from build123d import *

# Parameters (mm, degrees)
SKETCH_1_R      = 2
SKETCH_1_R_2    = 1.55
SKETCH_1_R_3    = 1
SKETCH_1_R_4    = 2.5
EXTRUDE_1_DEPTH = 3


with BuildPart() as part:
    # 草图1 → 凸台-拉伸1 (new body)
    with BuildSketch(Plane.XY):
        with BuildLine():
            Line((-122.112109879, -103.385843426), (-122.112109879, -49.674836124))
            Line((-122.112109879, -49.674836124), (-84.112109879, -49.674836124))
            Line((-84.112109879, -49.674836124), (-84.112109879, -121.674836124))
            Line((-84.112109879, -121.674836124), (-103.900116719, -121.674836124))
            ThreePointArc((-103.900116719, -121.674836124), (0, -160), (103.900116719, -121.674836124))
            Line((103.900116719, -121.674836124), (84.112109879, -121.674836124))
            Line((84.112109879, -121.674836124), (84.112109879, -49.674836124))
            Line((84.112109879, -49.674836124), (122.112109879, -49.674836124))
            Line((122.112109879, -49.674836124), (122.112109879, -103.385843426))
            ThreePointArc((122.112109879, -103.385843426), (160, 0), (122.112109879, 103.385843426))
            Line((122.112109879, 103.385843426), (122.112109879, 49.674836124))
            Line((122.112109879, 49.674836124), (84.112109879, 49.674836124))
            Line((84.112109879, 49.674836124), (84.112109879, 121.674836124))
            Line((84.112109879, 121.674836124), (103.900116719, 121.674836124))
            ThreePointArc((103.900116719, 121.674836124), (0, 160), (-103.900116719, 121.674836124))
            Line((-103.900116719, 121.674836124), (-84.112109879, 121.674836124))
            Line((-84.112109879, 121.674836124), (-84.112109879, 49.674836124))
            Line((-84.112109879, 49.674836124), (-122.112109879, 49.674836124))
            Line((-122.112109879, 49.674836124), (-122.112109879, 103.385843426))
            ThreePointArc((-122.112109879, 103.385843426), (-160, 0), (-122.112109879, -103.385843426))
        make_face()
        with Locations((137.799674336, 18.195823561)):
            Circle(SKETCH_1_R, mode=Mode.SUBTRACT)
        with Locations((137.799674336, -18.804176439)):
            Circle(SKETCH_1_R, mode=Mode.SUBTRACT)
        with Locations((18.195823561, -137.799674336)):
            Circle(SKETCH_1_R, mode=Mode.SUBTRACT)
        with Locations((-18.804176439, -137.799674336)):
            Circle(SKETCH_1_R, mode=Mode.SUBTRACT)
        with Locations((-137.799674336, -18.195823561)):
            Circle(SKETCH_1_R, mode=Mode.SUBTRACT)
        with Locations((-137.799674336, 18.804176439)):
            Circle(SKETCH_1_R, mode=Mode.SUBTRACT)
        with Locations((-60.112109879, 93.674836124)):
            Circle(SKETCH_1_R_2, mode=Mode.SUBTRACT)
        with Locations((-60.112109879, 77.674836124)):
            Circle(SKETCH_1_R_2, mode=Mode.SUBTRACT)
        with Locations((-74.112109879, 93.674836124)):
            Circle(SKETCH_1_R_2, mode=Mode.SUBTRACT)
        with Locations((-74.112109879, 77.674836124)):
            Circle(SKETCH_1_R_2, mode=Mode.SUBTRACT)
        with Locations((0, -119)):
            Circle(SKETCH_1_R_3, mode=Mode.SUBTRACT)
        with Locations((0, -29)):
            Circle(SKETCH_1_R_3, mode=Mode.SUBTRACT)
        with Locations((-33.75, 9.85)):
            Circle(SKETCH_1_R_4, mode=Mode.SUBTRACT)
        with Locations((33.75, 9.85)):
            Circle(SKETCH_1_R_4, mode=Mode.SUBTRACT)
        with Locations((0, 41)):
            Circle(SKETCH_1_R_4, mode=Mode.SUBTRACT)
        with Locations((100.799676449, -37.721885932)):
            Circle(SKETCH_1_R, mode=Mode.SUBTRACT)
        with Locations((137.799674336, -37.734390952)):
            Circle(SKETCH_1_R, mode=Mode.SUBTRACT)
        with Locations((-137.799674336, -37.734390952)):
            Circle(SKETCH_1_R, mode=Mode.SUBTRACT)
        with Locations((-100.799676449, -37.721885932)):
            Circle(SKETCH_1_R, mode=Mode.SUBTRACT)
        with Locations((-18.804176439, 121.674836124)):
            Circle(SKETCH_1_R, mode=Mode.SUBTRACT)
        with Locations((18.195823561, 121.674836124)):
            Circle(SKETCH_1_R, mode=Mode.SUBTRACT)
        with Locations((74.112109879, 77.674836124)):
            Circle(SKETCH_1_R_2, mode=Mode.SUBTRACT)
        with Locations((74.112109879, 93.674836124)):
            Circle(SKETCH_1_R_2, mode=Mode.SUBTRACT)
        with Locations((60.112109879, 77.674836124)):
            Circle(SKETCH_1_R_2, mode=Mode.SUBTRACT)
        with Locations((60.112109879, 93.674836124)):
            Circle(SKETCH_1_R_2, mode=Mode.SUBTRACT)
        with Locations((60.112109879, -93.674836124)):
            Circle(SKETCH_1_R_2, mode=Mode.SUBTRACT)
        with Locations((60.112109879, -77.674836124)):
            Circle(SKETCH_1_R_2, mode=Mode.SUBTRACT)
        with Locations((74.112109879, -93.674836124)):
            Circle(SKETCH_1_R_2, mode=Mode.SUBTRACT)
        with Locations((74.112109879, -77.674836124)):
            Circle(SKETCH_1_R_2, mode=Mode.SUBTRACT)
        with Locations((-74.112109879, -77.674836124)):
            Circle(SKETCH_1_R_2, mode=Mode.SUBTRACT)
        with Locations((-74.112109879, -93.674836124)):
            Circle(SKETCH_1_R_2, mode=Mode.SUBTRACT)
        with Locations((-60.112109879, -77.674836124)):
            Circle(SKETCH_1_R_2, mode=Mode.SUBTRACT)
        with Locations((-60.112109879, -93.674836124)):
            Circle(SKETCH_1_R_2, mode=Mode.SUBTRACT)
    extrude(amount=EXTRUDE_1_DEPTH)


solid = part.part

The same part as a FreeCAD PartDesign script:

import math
import FreeCAD as App
import Part
import Sketcher
Q = App.Units.Quantity

doc = App.newDocument("Part")
params = doc.addObject("Spreadsheet::Sheet", "Params")
for row, (alias, value) in enumerate([
    ("sketch1_diameter", "4 mm"),
    ("sketch1_diameter2", "2 mm"),
    ("sketch1_diameter3", "5 mm"),
    ("sketch1_radius", "160 mm"),
    ("sketch1_diameter4", "3.1 mm"),
    ("pad1_length", "3 mm"),
], start=1):
    params.set(f"A{row}", alias)
    params.set(f"B{row}", "=" + value)
    params.setAlias(f"B{row}", alias)

body = doc.addObject("PartDesign::Body", "Body")

sketch1 = body.newObject("Sketcher::SketchObject", "Sketch")
sketch1.AttachmentSupport = (doc.getObject("XY_Plane"), [""])
sketch1.MapMode = "FlatFace"
sketch1.addGeometry([
    Part.LineSegment(App.Vector(-122.1, -103.4, 0), App.Vector(-122.1, -49.7, 0)),
    Part.LineSegment(App.Vector(-122.1, -49.7, 0), App.Vector(-84.1, -49.7, 0)),
    Part.LineSegment(App.Vector(-84.1, -49.7, 0), App.Vector(-84.1, -121.7, 0)),
    Part.LineSegment(App.Vector(-84.1, -121.7, 0), App.Vector(-103.9, -121.7, 0)),
    Part.ArcOfCircle(Part.Circle(App.Vector(0, 0, 0), App.Vector(0, 0, 1), 160), math.radians(-130), math.radians(-50)),
    Part.LineSegment(App.Vector(103.9, -121.7, 0), App.Vector(84.1, -121.7, 0)),
    Part.LineSegment(App.Vector(84.1, -121.7, 0), App.Vector(84.1, -49.7, 0)),
    Part.LineSegment(App.Vector(84.1, -49.7, 0), App.Vector(122.1, -49.7, 0)),
    Part.LineSegment(App.Vector(122.1, -49.7, 0), App.Vector(122.1, -103.4, 0)),
    Part.ArcOfCircle(Part.Circle(App.Vector(0, 0, 0), App.Vector(0, 0, 1), 160), math.radians(-40), math.radians(40)),
    Part.LineSegment(App.Vector(122.1, 103.4, 0), App.Vector(122.1, 49.7, 0)),
    Part.LineSegment(App.Vector(122.1, 49.7, 0), App.Vector(84.1, 49.7, 0)),
    Part.LineSegment(App.Vector(84.1, 49.7, 0), App.Vector(84.1, 121.7, 0)),
    Part.LineSegment(App.Vector(84.1, 121.7, 0), App.Vector(103.9, 121.7, 0)),
    Part.ArcOfCircle(Part.Circle(App.Vector(0, 0, 0), App.Vector(0, 0, 1), 160), math.radians(50), math.radians(130)),
    Part.LineSegment(App.Vector(-103.9, 121.7, 0), App.Vector(-84.1, 121.7, 0)),
    Part.LineSegment(App.Vector(-84.1, 121.7, 0), App.Vector(-84.1, 49.7, 0)),
    Part.LineSegment(App.Vector(-84.1, 49.7, 0), App.Vector(-122.1, 49.7, 0)),
    Part.LineSegment(App.Vector(-122.1, 49.7, 0), App.Vector(-122.1, 103.4, 0)),
    Part.ArcOfCircle(Part.Circle(App.Vector(0, 0, 0), App.Vector(0, 0, 1), 160), math.radians(140), math.radians(220)),
    Part.Circle(App.Vector(-74.1, -93.7, 0), App.Vector(0, 0, 1), 1.6),
    Part.Circle(App.Vector(-74.1, -77.7, 0), App.Vector(0, 0, 1), 1.6),
    Part.Circle(App.Vector(-18.8, -137.8, 0), App.Vector(0, 0, 1), 2),
    Part.Circle(App.Vector(-60.1, -93.7, 0), App.Vector(0, 0, 1), 1.6),
    Part.Circle(App.Vector(-60.1, -77.7, 0), App.Vector(0, 0, 1), 1.6),
    Part.Circle(App.Vector(-137.8, -37.7, 0), App.Vector(0, 0, 1), 2),
    Part.Circle(App.Vector(-137.8, -18.2, 0), App.Vector(0, 0, 1), 2),
    Part.Circle(App.Vector(-100.8, -37.7, 0), App.Vector(0, 0, 1), 2),
    Part.Circle(App.Vector(18.2, -137.8, 0), App.Vector(0, 0, 1), 2),
    Part.Circle(App.Vector(0, -119, 0), App.Vector(0, 0, 1), 1),
    Part.Circle(App.Vector(60.1, -93.7, 0), App.Vector(0, 0, 1), 1.6),
    Part.Circle(App.Vector(60.1, -77.7, 0), App.Vector(0, 0, 1), 1.6),
    Part.Circle(App.Vector(74.1, -93.7, 0), App.Vector(0, 0, 1), 1.6),
    Part.Circle(App.Vector(74.1, -77.7, 0), App.Vector(0, 0, 1), 1.6),
    Part.Circle(App.Vector(0, -29, 0), App.Vector(0, 0, 1), 1),
    Part.Circle(App.Vector(100.8, -37.7, 0), App.Vector(0, 0, 1), 2),
    Part.Circle(App.Vector(137.8, -37.7, 0), App.Vector(0, 0, 1), 2),
    Part.Circle(App.Vector(137.8, -18.8, 0), App.Vector(0, 0, 1), 2),
    Part.Circle(App.Vector(-137.8, 18.8, 0), App.Vector(0, 0, 1), 2),
    Part.Circle(App.Vector(-33.8, 9.8, 0), App.Vector(0, 0, 1), 2.5),
    Part.Circle(App.Vector(-74.1, 77.7, 0), App.Vector(0, 0, 1), 1.6),
    Part.Circle(App.Vector(-74.1, 93.7, 0), App.Vector(0, 0, 1), 1.6),
    Part.Circle(App.Vector(-60.1, 77.7, 0), App.Vector(0, 0, 1), 1.6),
    Part.Circle(App.Vector(-60.1, 93.7, 0), App.Vector(0, 0, 1), 1.6),
    Part.Circle(App.Vector(-18.8, 121.7, 0), App.Vector(0, 0, 1), 2),
    Part.Circle(App.Vector(33.8, 9.8, 0), App.Vector(0, 0, 1), 2.5),
    Part.Circle(App.Vector(0, 41, 0), App.Vector(0, 0, 1), 2.5),
    Part.Circle(App.Vector(137.8, 18.2, 0), App.Vector(0, 0, 1), 2),
    Part.Circle(App.Vector(60.1, 77.7, 0), App.Vector(0, 0, 1), 1.6),
    Part.Circle(App.Vector(18.2, 121.7, 0), App.Vector(0, 0, 1), 2),
    Part.Circle(App.Vector(60.1, 93.7, 0), App.Vector(0, 0, 1), 1.6),
    Part.Circle(App.Vector(74.1, 77.7, 0), App.Vector(0, 0, 1), 1.6),
    Part.Circle(App.Vector(74.1, 93.7, 0), App.Vector(0, 0, 1), 1.6),
], False)
sketch1.addConstraint([
    Sketcher.Constraint("Coincident", 0, 2, 1, 1),
    Sketcher.Constraint("Coincident", 1, 2, 2, 1),
    Sketcher.Constraint("Coincident", 2, 2, 3, 1),
    Sketcher.Constraint("Coincident", 3, 2, 4, 1),
    Sketcher.Constraint("Coincident", 4, 2, 5, 1),
    Sketcher.Constraint("Coincident", 5, 2, 6, 1),
    Sketcher.Constraint("Coincident", 6, 2, 7, 1),
    Sketcher.Constraint("Coincident", 7, 2, 8, 1),
    Sketcher.Constraint("Coincident", 8, 2, 9, 1),
    Sketcher.Constraint("Coincident", 9, 2, 10, 1),
    Sketcher.Constraint("Coincident", 10, 2, 11, 1),
    Sketcher.Constraint("Coincident", 11, 2, 12, 1),
    Sketcher.Constraint("Coincident", 12, 2, 13, 1),
    Sketcher.Constraint("Coincident", 13, 2, 14, 1),
    Sketcher.Constraint("Coincident", 14, 2, 15, 1),
    Sketcher.Constraint("Coincident", 15, 2, 16, 1),
    Sketcher.Constraint("Coincident", 16, 2, 17, 1),
    Sketcher.Constraint("Coincident", 17, 2, 18, 1),
    Sketcher.Constraint("Coincident", 18, 2, 19, 1),
    Sketcher.Constraint("Coincident", 19, 2, 0, 1),
    Sketcher.Constraint("Vertical", 0),
    Sketcher.Constraint("Horizontal", 1),
    Sketcher.Constraint("Vertical", 2),
    Sketcher.Constraint("Horizontal", 3),
    Sketcher.Constraint("Horizontal", 5),
    Sketcher.Constraint("Vertical", 6),
    Sketcher.Constraint("Horizontal", 7),
    Sketcher.Constraint("Vertical", 8),
    Sketcher.Constraint("Vertical", 10),
    Sketcher.Constraint("Horizontal", 11),
    Sketcher.Constraint("Vertical", 12),
    Sketcher.Constraint("Horizontal", 13),
    Sketcher.Constraint("Horizontal", 15),
    Sketcher.Constraint("Vertical", 16),
    Sketcher.Constraint("Horizontal", 17),
    Sketcher.Constraint("Vertical", 18),
    Sketcher.Constraint("Coincident", 4, 3, -1, 1),
    Sketcher.Constraint("Coincident", 9, 3, -1, 1),
    Sketcher.Constraint("Coincident", 14, 3, -1, 1),
    Sketcher.Constraint("Coincident", 19, 3, -1, 1),
    Sketcher.Constraint("Equal", 4, 9),
    Sketcher.Constraint("Equal", 9, 14),
    Sketcher.Constraint("Equal", 14, 19),
    Sketcher.Constraint("Equal", 20, 21),
    Sketcher.Constraint("Equal", 21, 23),
    Sketcher.Constraint("Equal", 23, 24),
    Sketcher.Constraint("Equal", 22, 25),
    Sketcher.Constraint("Equal", 25, 26),
    Sketcher.Constraint("Equal", 26, 27),
    Sketcher.Constraint("Equal", 27, 28),
    Sketcher.Constraint("Equal", 24, 30),
    Sketcher.Constraint("Equal", 30, 31),
    Sketcher.Constraint("Equal", 31, 32),
    Sketcher.Constraint("Equal", 32, 33),
    Sketcher.Constraint("Equal", 29, 34),
    Sketcher.Constraint("Equal", 28, 35),
    Sketcher.Constraint("Equal", 35, 36),
    Sketcher.Constraint("Equal", 36, 37),
    Sketcher.Constraint("Equal", 37, 38),
    Sketcher.Constraint("Equal", 33, 40),
    Sketcher.Constraint("Equal", 40, 41),
    Sketcher.Constraint("Equal", 41, 42),
    Sketcher.Constraint("Equal", 42, 43),
    Sketcher.Constraint("Equal", 38, 44),
    Sketcher.Constraint("Equal", 39, 45),
    Sketcher.Constraint("Equal", 45, 46),
    Sketcher.Constraint("Equal", 44, 47),
    Sketcher.Constraint("Equal", 43, 48),
    Sketcher.Constraint("Equal", 47, 49),
    Sketcher.Constraint("Equal", 48, 50),
    Sketcher.Constraint("Equal", 50, 51),
    Sketcher.Constraint("Equal", 51, 52),
    Sketcher.Constraint("Symmetric", 37, 3, 38, 3, -1, 1),
    Sketcher.Constraint("Symmetric", 33, 3, 40, 3, -1, 1),
    Sketcher.Constraint("Symmetric", 32, 3, 41, 3, -1, 1),
    Sketcher.Constraint("Symmetric", 31, 3, 42, 3, -1, 1),
    Sketcher.Constraint("Symmetric", 30, 3, 43, 3, -1, 1),
    Sketcher.Constraint("Symmetric", 26, 3, 47, 3, -1, 1),
    Sketcher.Constraint("Symmetric", 24, 3, 48, 3, -1, 1),
    Sketcher.Constraint("Symmetric", 23, 3, 50, 3, -1, 1),
    Sketcher.Constraint("Symmetric", 21, 3, 51, 3, -1, 1),
    Sketcher.Constraint("Symmetric", 20, 3, 52, 3, -1, 1),
    Sketcher.Constraint("Symmetric", 0, 2, 10, 2, -1, 1),
    Sketcher.Constraint("Symmetric", 2, 2, 12, 2, -1, 1),
    Sketcher.Constraint("Symmetric", 5, 2, 15, 2, -1, 1),
    Sketcher.Constraint("Symmetric", 7, 2, 17, 2, -1, 1),
    Sketcher.Constraint("Symmetric", 23, 3, 30, 3, -2),
    Sketcher.Constraint("Symmetric", 24, 3, 31, 3, -2),
    Sketcher.Constraint("Symmetric", 20, 3, 32, 3, -2),
    Sketcher.Constraint("Symmetric", 21, 3, 33, 3, -2),
    Sketcher.Constraint("Symmetric", 27, 3, 35, 3, -2),
    Sketcher.Constraint("Symmetric", 25, 3, 36, 3, -2),
    Sketcher.Constraint("Symmetric", 39, 3, 45, 3, -2),
    Sketcher.Constraint("Symmetric", 2, 2, 5, 2, -2),
    Sketcher.Constraint("Symmetric", 0, 2, 7, 2, -2),
    Sketcher.Constraint("PointOnObject", 29, 3, -2),
    Sketcher.Constraint("PointOnObject", 34, 3, -2),
    Sketcher.Constraint("PointOnObject", 46, 3, -2),
    Sketcher.Constraint("Horizontal", 20, 3, 23, 3),
    Sketcher.Constraint("Horizontal", 21, 3, 24, 3),
    Sketcher.Constraint("Horizontal", 22, 3, 28, 3),
    Sketcher.Constraint("Horizontal", 44, 3, 49, 3),
    Sketcher.Constraint("Horizontal", 49, 3, 12, 2),
    Sketcher.Constraint("Vertical", 20, 3, 21, 3),
    Sketcher.Constraint("Vertical", 23, 3, 24, 3),
    Sketcher.Constraint("Vertical", 25, 3, 26, 3),
    Sketcher.Constraint("Vertical", 36, 3, 37, 3),
    Sketcher.Constraint("Vertical", 22, 3, 44, 3),
    Sketcher.Constraint("Vertical", 28, 3, 49, 3),
    Sketcher.Constraint("Diameter", 22, Q("4 mm")),
    Sketcher.Constraint("Diameter", 29, Q("2 mm")),
    Sketcher.Constraint("Diameter", 39, Q("5 mm")),
    Sketcher.Constraint("Radius", 4, Q("160 mm")),
    Sketcher.Constraint("Diameter", 20, Q("3.1 mm")),
    Sketcher.Constraint("DistanceX", 1, 1, 1, 2, Q("38 mm")),
    Sketcher.Constraint("DistanceY", 2, 2, 2, 1, Q("72 mm")),
    Sketcher.Constraint("DistanceY", 29, 3, -1, 1, Q("119 mm")),
    Sketcher.Constraint("DistanceY", 34, 3, -1, 1, Q("29 mm")),
    Sketcher.Constraint("DistanceY", -1, 1, 46, 3, Q("41 mm")),
    Sketcher.Constraint("DistanceY", 20, 3, 21, 3, Q("16 mm")),
    Sketcher.Constraint("DistanceX", 20, 3, 23, 3, Q("14 mm")),
    Sketcher.Constraint("DistanceX", 22, 3, 28, 3, Q("37 mm")),
    Sketcher.Constraint("DistanceY", 26, 3, 38, 3, Q("37 mm")),
    Sketcher.Constraint("DistanceY", 43, 3, 44, 3, Q("28 mm")),
    Sketcher.Constraint("DistanceX", 0, 2, 21, 3, Q("48 mm")),
    Sketcher.Constraint("DistanceX", 39, 3, -1, 1, Q("33.75 mm")),
    Sketcher.Constraint("DistanceY", -1, 1, 39, 3, Q("9.85 mm")),
    Sketcher.Constraint("DistanceX", 3, 2, 3, 1, Q("19.788007 mm")),
    Sketcher.Constraint("DistanceY", 0, 1, 0, 2, Q("53.711007 mm")),
    Sketcher.Constraint("DistanceY", 25, 3, -1, 1, Q("37.734391 mm")),
    Sketcher.Constraint("DistanceY", 22, 3, 20, 3, Q("44.124838 mm")),
    Sketcher.Constraint("DistanceY", 21, 3, 27, 3, Q("39.95295 mm")),
    Sketcher.Constraint("DistanceY", 35, 3, 37, 3, Q("18.917709 mm")),
    Sketcher.Constraint("DistanceX", 35, 3, 4, 2, Q("3.10044 mm")),
    Sketcher.Constraint("DistanceX", 14, 2, 44, 3, Q("85.09594 mm")),
    Sketcher.Constraint("DistanceX", 25, 3, -1, 1, Q("137.799674 mm")),
])
sketch1.setExpression("Constraints[109]", "Params.sketch1_diameter")
sketch1.setExpression("Constraints[110]", "Params.sketch1_diameter2")
sketch1.setExpression("Constraints[111]", "Params.sketch1_diameter3")
sketch1.setExpression("Constraints[112]", "Params.sketch1_radius")
sketch1.setExpression("Constraints[113]", "Params.sketch1_diameter4")
pad1 = body.newObject("PartDesign::Pad", "Pad")
pad1.Profile = sketch1
pad1.setExpression("Length", "Params.pad1_length")

doc.recompute()
